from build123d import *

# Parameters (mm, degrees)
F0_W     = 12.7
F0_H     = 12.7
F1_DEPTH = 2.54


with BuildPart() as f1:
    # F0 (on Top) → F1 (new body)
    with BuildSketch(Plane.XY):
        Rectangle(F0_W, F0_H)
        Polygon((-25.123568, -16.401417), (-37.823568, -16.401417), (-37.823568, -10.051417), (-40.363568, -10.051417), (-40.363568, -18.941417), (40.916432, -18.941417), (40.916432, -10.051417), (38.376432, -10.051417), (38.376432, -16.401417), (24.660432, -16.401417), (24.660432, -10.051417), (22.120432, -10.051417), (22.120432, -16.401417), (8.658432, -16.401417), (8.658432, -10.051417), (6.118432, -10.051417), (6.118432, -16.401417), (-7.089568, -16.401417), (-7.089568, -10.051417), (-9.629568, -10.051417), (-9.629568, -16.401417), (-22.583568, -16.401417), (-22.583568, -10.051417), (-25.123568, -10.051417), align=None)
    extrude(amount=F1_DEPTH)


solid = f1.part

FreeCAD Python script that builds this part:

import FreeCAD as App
import Part
import Sketcher

V = App.Vector
Q = App.Units.Quantity


def add_polygon(sketch, points):
    """Adds a closed chain of lines whose ends are joined by coincident constraints."""
    first, n = sketch.GeometryCount, len(points)
    for a, b in zip(points, points[1:] + points[:1]):
        sketch.addGeometry(Part.LineSegment(App.Vector(*a, 0), App.Vector(*b, 0)), False)
    for i in range(n):
        sketch.addConstraint(Sketcher.Constraint("Coincident", first + i, 2, first + (i + 1) % n, 1))

doc = App.newDocument("Part")
body = doc.addObject("PartDesign::Body", "Body")
body.AllowCompound = True

# Sketch on XY plane
sketch1 = body.newObject("Sketcher::SketchObject", "Sketch")
sketch1.AttachmentSupport = (doc.getObject("XY_Plane"), [""])
sketch1.MapMode = "FlatFace"
add_polygon(sketch1, [(-6.3, 6.3), (-6.3, -6.3), (6.3, -6.3), (6.3, 6.3)])  # lines 0-3
add_polygon(sketch1, [(-25.1, -16.4), (-37.8, -16.4), (-37.8, -10.1), (-40.4, -10.1), (-40.4, -18.9), (40.9, -18.9), (40.9, -10.1), (38.4, -10.1), (38.4, -16.4), (24.7, -16.4), (24.7, -10.1), (22.1, -10.1), (22.1, -16.4), (8.7, -16.4), (8.7, -10.1), (6.1, -10.1), (6.1, -16.4), (-7.1, -16.4), (-7.1, -10.1), (-9.6, -10.1), (-9.6, -16.4), (-22.6, -16.4), (-22.6, -10.1), (-25.1, -10.1)])  # lines 4-27
sketch1.addConstraint([
    Sketcher.Constraint("Vertical", 0),
    Sketcher.Constraint("Horizontal", 1),
    Sketcher.Constraint("Vertical", 2),
    Sketcher.Constraint("Horizontal", 3),
    Sketcher.Constraint("Horizontal", 4),
    Sketcher.Constraint("Vertical", 5),
    Sketcher.Constraint("Horizontal", 6),
    Sketcher.Constraint("Vertical", 7),
    Sketcher.Constraint("Horizontal", 8),
    Sketcher.Constraint("Vertical", 9),
    Sketcher.Constraint("Horizontal", 10),
    Sketcher.Constraint("Vertical", 11),
    Sketcher.Constraint("Horizontal", 12),
    Sketcher.Constraint("Vertical", 13),
    Sketcher.Constraint("Horizontal", 14),
    Sketcher.Constraint("Vertical", 15),
    Sketcher.Constraint("Horizontal", 16),
    Sketcher.Constraint("Vertical", 17),
    Sketcher.Constraint("Horizontal", 18),
    Sketcher.Constraint("Vertical", 19),
    Sketcher.Constraint("Horizontal", 20),
    Sketcher.Constraint("Vertical", 21),
    Sketcher.Constraint("Horizontal", 22),
    Sketcher.Constraint("Vertical", 23),
    Sketcher.Constraint("Horizontal", 24),
    Sketcher.Constraint("Vertical", 25),
    Sketcher.Constraint("Horizontal", 26),
    Sketcher.Constraint("Vertical", 27),
    Sketcher.Constraint("Symmetric", 0, 2, 2, 2, -1, 1),
    Sketcher.Constraint("Horizontal", 6, 2, 9, 2),
    Sketcher.Constraint("Horizontal", 4, 2, 11, 2),
    Sketcher.Constraint("Horizontal", 10, 2, 13, 2),
    Sketcher.Constraint("Horizontal", 12, 2, 15, 2),
    Sketcher.Constraint("Horizontal", 14, 2, 17, 2),
    Sketcher.Constraint("Horizontal", 16, 2, 19, 2),
    Sketcher.Constraint("Horizontal", 18, 2, 21, 2),
    Sketcher.Constraint("Horizontal", 20, 2, 23, 2),
    Sketcher.Constraint("Horizontal", 22, 2, 25, 2),
    Sketcher.Constraint("Equal", 3, 4),
    Sketcher.Constraint("Equal", 6, 10),
    Sketcher.Constraint("Equal", 10, 14),
    Sketcher.Constraint("Equal", 14, 18),
    Sketcher.Constraint("Equal", 18, 22),
    Sketcher.Constraint("Equal", 22, 26),
    Sketcher.Constraint("Equal", 4, 0),
    Sketcher.Constraint("DistanceX", 1, 1, 1, 2, Q("0.5 in")),
    Sketcher.Constraint("DistanceX", 6, 2, 6, 1, Q("0.1 in")),
    Sketcher.Constraint("DistanceX", 8, 1, 8, 2, Q("3.2 in")),
    Sketcher.Constraint("DistanceX", 12, 2, 12, 1, Q("0.54 in")),
    Sketcher.Constraint("DistanceX", 16, 2, 16, 1, Q("0.53 in")),
    Sketcher.Constraint("DistanceX", 20, 2, 20, 1, Q("0.52 in")),
    Sketcher.Constraint("DistanceY", 5, 1, 5, 2, Q("0.25 in")),
    Sketcher.Constraint("DistanceY", 7, 2, 7, 1, Q("0.35 in")),
    Sketcher.Constraint("DistanceX", 4, 2, -1, 1, Q("37.823568 mm")),
    Sketcher.Constraint("DistanceY", 4, 2, -1, 1, Q("16.401417 mm")),
])
pad1 = body.newObject("PartDesign::Pad", "Pad")
pad1.Profile = sketch1
pad1.Length = Q("0.1 in")

doc.recompute()
